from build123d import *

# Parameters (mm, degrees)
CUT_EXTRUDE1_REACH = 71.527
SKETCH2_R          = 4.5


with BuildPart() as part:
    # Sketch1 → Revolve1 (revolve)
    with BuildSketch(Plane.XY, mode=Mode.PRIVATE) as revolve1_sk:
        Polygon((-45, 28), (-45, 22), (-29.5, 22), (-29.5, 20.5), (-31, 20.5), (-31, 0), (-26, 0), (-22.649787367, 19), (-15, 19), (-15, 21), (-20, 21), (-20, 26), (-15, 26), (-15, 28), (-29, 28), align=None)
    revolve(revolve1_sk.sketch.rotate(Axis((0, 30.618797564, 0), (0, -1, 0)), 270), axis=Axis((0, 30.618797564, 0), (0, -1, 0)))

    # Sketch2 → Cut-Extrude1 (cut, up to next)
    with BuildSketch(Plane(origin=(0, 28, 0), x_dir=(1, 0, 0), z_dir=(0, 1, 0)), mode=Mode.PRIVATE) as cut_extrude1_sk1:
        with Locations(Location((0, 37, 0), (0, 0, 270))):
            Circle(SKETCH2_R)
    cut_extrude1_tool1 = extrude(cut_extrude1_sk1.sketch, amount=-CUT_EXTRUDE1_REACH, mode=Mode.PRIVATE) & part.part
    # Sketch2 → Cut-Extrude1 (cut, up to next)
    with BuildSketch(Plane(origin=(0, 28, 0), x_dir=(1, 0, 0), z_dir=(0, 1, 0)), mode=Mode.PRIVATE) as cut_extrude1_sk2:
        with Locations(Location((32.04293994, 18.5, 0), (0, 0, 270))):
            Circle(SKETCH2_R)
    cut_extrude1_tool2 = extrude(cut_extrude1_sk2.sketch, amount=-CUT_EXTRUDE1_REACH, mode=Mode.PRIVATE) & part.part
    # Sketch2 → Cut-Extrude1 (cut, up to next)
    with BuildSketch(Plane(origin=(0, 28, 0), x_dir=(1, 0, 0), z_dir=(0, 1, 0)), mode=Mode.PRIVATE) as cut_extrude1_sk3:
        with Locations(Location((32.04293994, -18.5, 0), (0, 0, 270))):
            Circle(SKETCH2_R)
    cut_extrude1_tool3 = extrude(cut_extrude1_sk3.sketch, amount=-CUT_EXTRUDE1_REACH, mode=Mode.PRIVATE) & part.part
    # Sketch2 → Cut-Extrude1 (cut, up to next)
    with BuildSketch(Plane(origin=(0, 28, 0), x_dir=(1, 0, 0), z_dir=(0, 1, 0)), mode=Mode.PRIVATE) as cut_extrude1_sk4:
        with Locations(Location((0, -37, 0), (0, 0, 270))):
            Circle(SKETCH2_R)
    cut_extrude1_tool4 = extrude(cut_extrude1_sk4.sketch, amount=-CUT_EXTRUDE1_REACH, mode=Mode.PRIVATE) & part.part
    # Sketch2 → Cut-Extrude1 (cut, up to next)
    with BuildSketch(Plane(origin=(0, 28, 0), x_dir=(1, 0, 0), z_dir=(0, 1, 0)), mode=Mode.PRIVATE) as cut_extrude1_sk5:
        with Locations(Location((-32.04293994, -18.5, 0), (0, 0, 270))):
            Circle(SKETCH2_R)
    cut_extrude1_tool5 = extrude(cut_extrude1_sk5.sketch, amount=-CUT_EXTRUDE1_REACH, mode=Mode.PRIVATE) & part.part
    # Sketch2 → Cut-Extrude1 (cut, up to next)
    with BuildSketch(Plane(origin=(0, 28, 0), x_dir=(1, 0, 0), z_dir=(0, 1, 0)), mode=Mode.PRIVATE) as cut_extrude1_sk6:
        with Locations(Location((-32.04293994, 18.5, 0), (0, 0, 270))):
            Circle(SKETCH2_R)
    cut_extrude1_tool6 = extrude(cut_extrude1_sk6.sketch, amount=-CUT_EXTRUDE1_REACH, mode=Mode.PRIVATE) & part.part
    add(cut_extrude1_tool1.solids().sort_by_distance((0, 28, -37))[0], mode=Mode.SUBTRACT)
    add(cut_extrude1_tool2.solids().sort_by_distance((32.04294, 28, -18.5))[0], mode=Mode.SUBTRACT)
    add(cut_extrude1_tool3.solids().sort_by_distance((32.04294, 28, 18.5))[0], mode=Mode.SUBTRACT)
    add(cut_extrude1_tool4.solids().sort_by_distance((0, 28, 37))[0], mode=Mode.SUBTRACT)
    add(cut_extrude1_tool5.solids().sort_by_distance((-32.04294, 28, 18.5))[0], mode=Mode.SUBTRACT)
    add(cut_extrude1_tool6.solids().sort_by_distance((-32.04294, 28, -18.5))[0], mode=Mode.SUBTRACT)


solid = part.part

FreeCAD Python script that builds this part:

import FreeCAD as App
import Part
import Sketcher

V = App.Vector
Q = App.Units.Quantity


def add_polygon(sketch, points):
    """Adds a closed chain of lines whose ends are joined by coincident constraints."""
    first, n = sketch.GeometryCount, len(points)
    for a, b in zip(points, points[1:] + points[:1]):
        sketch.addGeometry(Part.LineSegment(App.Vector(*a, 0), App.Vector(*b, 0)), False)
    for i in range(n):
        sketch.addConstraint(Sketcher.Constraint("Coincident", first + i, 2, first + (i + 1) % n, 1))

doc = App.newDocument("Part")
body = doc.addObject("PartDesign::Body", "Body")

# Sketch on XY plane
sketch1 = body.newObject("Sketcher::SketchObject", "Sketch")
sketch1.AttachmentSupport = (doc.getObject("XY_Plane"), [""])
sketch1.MapMode = "FlatFace"
add_polygon(sketch1, [(-45, 28), (-45, 22), (-29.5, 22), (-29.5, 20.5), (-31, 20.5), (-31, 0), (-26, 0), (-22.6, 19), (-15, 19), (-15, 21), (-20, 21), (-20, 26), (-15, 26), (-15, 28)])  # lines 0-13
sketch1.addConstraint(Sketcher.Constraint("Vertical", 0))
sketch1.addConstraint(Sketcher.Constraint("Horizontal", 1))
sketch1.addConstraint(Sketcher.Constraint("Vertical", 2))
sketch1.addConstraint(Sketcher.Constraint("Horizontal", 3))
sketch1.addConstraint(Sketcher.Constraint("Vertical", 4))
sketch1.addConstraint(Sketcher.Constraint("Horizontal", 5))
sketch1.addConstraint(Sketcher.Constraint("Horizontal", 7))
sketch1.addConstraint(Sketcher.Constraint("Vertical", 8))
sketch1.addConstraint(Sketcher.Constraint("Horizontal", 9))
sketch1.addConstraint(Sketcher.Constraint("Vertical", 10))
sketch1.addConstraint(Sketcher.Constraint("Horizontal", 11))
sketch1.addConstraint(Sketcher.Constraint("Vertical", 12))
sketch1.addConstraint(Sketcher.Constraint("Horizontal", 13))
sketch1.addConstraint(Sketcher.Constraint("PointOnObject", 4, 2, -1))
sketch1.addConstraint(Sketcher.Constraint("Vertical", 8, 2, 11, 2))
sketch1.addConstraint(Sketcher.Constraint("Equal", 5, 9))
sketch1.addConstraint(Sketcher.Constraint("Equal", 3, 2))
sketch1.addConstraint(Sketcher.Constraint("Equal", 11, 10))
sketch1.addConstraint(Sketcher.Constraint("Equal", 8, 12))
sketch1.addConstraint(Sketcher.Constraint("DistanceX", 5, 1, 5, 2, Q("5 mm")))
sketch1.addConstraint(Sketcher.Constraint("DistanceX", 13, 2, 13, 1, Q("30 mm")))
sketch1.addConstraint(Sketcher.Constraint("DistanceY", 0, 2, 0, 1, Q("6 mm")))
sketch1.addConstraint(Sketcher.Constraint("DistanceY", 8, 1, 8, 2, Q("2 mm")))
sketch1.addConstraint(Sketcher.Constraint("Angle", 6, Q("80 deg")))
sketch1.addConstraint(Sketcher.Constraint("DistanceX", 1, 1, 1, 2, Q("15.5 mm")))
sketch1.addConstraint(Sketcher.Constraint("DistanceX", 3, 2, 3, 1, Q("1.5 mm")))
sketch1.addConstraint(Sketcher.Constraint("DistanceY", 4, 2, 4, 1, Q("20.5 mm")))
sketch1.addConstraint(Sketcher.Constraint("DistanceX", 0, 2, -1, 1, Q("45 mm")))
revolution = body.newObject("PartDesign::Revolution", "Revolution")
revolution.Profile = sketch1
revolution.ReferenceAxis = (sketch1, ["V_Axis"])
revolution.Angle = 360

# Sketch on XZ plane
sketch2 = body.newObject("Sketcher::SketchObject", "Sketch001")
sketch2.AttachmentSupport = (doc.getObject("XZ_Plane"), [""])
sketch2.MapMode = "FlatFace"
sketch2.AttachmentOffset = App.Placement(V(0, 0, -28), App.Rotation())
sketch2.addGeometry(Part.Circle(V(0, -37, 0), V(0, 0, 1), 4.5), False)
sketch2.addConstraint(Sketcher.Constraint("PointOnObject", 0, 3, -2))
sketch2.addConstraint(Sketcher.Constraint("Diameter", 0, Q("9 mm")))
sketch2.addConstraint(Sketcher.Constraint("DistanceY", 0, 3, -1, 1, Q("37 mm")))
pocket1 = body.newObject("PartDesign::Pocket", "Pocket")
pocket1.Profile = sketch2
pocket1.Type = "UpToFirst"
pocket1.Reversed = True

# Sketch on XZ plane
sketch3 = body.newObject("Sketcher::SketchObject", "Sketch002")
sketch3.AttachmentSupport = (doc.getObject("XZ_Plane"), [""])
sketch3.MapMode = "FlatFace"
sketch3.AttachmentOffset = App.Placement(V(0, 0, -28), App.Rotation())
sketch3.addGeometry(Part.Circle(V(32, -18.5, 0), V(0, 0, 1), 4.5), False)
sketch3.addConstraint(Sketcher.Constraint("Diameter", 0, Q("9 mm")))
sketch3.addConstraint(Sketcher.Constraint("DistanceY", 0, 3, -1, 1, Q("18.5 mm")))
sketch3.addConstraint(Sketcher.Constraint("DistanceX", -1, 1, 0, 3, Q("32.04294 mm")))
pocket2 = body.newObject("PartDesign::Pocket", "Pocket001")
pocket2.Profile = sketch3
pocket2.Type = "UpToFirst"
pocket2.Reversed = True

# Sketch on XZ plane
sketch4 = body.newObject("Sketcher::SketchObject", "Sketch003")
sketch4.AttachmentSupport = (doc.getObject("XZ_Plane"), [""])
sketch4.MapMode = "FlatFace"
sketch4.AttachmentOffset = App.Placement(V(0, 0, -28), App.Rotation())
sketch4.addGeometry(Part.Circle(V(32, 18.5, 0), V(0, 0, 1), 4.5), False)
sketch4.addConstraint(Sketcher.Constraint("Diameter", 0, Q("9 mm")))
sketch4.addConstraint(Sketcher.Constraint("DistanceY", -1, 1, 0, 3, Q("18.5 mm")))
sketch4.addConstraint(Sketcher.Constraint("DistanceX", -1, 1, 0, 3, Q("32.04294 mm")))
pocket3 = body.newObject("PartDesign::Pocket", "Pocket002")
pocket3.Profile = sketch4
pocket3.Type = "UpToFirst"
pocket3.Reversed = True

# Sketch on XZ plane
sketch5 = body.newObject("Sketcher::SketchObject", "Sketch004")
sketch5.AttachmentSupport = (doc.getObject("XZ_Plane"), [""])
sketch5.MapMode = "FlatFace"
sketch5.AttachmentOffset = App.Placement(V(0, 0, -28), App.Rotation())
sketch5.addGeometry(Part.Circle(V(0, 37, 0), V(0, 0, 1), 4.5), False)
sketch5.addConstraint(Sketcher.Constraint("PointOnObject", 0, 3, -2))
sketch5.addConstraint(Sketcher.Constraint("Diameter", 0, Q("9 mm")))
sketch5.addConstraint(Sketcher.Constraint("DistanceY", -1, 1, 0, 3, Q("37 mm")))
pocket4 = body.newObject("PartDesign::Pocket", "Pocket003")
pocket4.Profile = sketch5
pocket4.Type = "UpToFirst"
pocket4.Reversed = True

# Sketch on XZ plane
sketch6 = body.newObject("Sketcher::SketchObject", "Sketch005")
sketch6.AttachmentSupport = (doc.getObject("XZ_Plane"), [""])
sketch6.MapMode = "FlatFace"
sketch6.AttachmentOffset = App.Placement(V(0, 0, -28), App.Rotation())
sketch6.addGeometry(Part.Circle(V(-32, 18.5, 0), V(0, 0, 1), 4.5), False)
sketch6.addConstraint(Sketcher.Constraint("Diameter", 0, Q("9 mm")))
sketch6.addConstraint(Sketcher.Constraint("DistanceY", -1, 1, 0, 3, Q("18.5 mm")))
sketch6.addConstraint(Sketcher.Constraint("DistanceX", 0, 3, -1, 1, Q("32.04294 mm")))
pocket5 = body.newObject("PartDesign::Pocket", "Pocket004")
pocket5.Profile = sketch6
pocket5.Type = "UpToFirst"
pocket5.Reversed = True

# Sketch on XZ plane
sketch7 = body.newObject("Sketcher::SketchObject", "Sketch006")
sketch7.AttachmentSupport = (doc.getObject("XZ_Plane"), [""])
sketch7.MapMode = "FlatFace"
sketch7.AttachmentOffset = App.Placement(V(0, 0, -28), App.Rotation())
sketch7.addGeometry(Part.Circle(V(-32, -18.5, 0), V(0, 0, 1), 4.5), False)
sketch7.addConstraint(Sketcher.Constraint("Diameter", 0, Q("9 mm")))
sketch7.addConstraint(Sketcher.Constraint("DistanceY", 0, 3, -1, 1, Q("18.5 mm")))
sketch7.addConstraint(Sketcher.Constraint("DistanceX", 0, 3, -1, 1, Q("32.04294 mm")))
pocket6 = body.newObject("PartDesign::Pocket", "Pocket005")
pocket6.Profile = sketch7
pocket6.Type = "UpToFirst"
pocket6.Reversed = True

doc.recompute()
